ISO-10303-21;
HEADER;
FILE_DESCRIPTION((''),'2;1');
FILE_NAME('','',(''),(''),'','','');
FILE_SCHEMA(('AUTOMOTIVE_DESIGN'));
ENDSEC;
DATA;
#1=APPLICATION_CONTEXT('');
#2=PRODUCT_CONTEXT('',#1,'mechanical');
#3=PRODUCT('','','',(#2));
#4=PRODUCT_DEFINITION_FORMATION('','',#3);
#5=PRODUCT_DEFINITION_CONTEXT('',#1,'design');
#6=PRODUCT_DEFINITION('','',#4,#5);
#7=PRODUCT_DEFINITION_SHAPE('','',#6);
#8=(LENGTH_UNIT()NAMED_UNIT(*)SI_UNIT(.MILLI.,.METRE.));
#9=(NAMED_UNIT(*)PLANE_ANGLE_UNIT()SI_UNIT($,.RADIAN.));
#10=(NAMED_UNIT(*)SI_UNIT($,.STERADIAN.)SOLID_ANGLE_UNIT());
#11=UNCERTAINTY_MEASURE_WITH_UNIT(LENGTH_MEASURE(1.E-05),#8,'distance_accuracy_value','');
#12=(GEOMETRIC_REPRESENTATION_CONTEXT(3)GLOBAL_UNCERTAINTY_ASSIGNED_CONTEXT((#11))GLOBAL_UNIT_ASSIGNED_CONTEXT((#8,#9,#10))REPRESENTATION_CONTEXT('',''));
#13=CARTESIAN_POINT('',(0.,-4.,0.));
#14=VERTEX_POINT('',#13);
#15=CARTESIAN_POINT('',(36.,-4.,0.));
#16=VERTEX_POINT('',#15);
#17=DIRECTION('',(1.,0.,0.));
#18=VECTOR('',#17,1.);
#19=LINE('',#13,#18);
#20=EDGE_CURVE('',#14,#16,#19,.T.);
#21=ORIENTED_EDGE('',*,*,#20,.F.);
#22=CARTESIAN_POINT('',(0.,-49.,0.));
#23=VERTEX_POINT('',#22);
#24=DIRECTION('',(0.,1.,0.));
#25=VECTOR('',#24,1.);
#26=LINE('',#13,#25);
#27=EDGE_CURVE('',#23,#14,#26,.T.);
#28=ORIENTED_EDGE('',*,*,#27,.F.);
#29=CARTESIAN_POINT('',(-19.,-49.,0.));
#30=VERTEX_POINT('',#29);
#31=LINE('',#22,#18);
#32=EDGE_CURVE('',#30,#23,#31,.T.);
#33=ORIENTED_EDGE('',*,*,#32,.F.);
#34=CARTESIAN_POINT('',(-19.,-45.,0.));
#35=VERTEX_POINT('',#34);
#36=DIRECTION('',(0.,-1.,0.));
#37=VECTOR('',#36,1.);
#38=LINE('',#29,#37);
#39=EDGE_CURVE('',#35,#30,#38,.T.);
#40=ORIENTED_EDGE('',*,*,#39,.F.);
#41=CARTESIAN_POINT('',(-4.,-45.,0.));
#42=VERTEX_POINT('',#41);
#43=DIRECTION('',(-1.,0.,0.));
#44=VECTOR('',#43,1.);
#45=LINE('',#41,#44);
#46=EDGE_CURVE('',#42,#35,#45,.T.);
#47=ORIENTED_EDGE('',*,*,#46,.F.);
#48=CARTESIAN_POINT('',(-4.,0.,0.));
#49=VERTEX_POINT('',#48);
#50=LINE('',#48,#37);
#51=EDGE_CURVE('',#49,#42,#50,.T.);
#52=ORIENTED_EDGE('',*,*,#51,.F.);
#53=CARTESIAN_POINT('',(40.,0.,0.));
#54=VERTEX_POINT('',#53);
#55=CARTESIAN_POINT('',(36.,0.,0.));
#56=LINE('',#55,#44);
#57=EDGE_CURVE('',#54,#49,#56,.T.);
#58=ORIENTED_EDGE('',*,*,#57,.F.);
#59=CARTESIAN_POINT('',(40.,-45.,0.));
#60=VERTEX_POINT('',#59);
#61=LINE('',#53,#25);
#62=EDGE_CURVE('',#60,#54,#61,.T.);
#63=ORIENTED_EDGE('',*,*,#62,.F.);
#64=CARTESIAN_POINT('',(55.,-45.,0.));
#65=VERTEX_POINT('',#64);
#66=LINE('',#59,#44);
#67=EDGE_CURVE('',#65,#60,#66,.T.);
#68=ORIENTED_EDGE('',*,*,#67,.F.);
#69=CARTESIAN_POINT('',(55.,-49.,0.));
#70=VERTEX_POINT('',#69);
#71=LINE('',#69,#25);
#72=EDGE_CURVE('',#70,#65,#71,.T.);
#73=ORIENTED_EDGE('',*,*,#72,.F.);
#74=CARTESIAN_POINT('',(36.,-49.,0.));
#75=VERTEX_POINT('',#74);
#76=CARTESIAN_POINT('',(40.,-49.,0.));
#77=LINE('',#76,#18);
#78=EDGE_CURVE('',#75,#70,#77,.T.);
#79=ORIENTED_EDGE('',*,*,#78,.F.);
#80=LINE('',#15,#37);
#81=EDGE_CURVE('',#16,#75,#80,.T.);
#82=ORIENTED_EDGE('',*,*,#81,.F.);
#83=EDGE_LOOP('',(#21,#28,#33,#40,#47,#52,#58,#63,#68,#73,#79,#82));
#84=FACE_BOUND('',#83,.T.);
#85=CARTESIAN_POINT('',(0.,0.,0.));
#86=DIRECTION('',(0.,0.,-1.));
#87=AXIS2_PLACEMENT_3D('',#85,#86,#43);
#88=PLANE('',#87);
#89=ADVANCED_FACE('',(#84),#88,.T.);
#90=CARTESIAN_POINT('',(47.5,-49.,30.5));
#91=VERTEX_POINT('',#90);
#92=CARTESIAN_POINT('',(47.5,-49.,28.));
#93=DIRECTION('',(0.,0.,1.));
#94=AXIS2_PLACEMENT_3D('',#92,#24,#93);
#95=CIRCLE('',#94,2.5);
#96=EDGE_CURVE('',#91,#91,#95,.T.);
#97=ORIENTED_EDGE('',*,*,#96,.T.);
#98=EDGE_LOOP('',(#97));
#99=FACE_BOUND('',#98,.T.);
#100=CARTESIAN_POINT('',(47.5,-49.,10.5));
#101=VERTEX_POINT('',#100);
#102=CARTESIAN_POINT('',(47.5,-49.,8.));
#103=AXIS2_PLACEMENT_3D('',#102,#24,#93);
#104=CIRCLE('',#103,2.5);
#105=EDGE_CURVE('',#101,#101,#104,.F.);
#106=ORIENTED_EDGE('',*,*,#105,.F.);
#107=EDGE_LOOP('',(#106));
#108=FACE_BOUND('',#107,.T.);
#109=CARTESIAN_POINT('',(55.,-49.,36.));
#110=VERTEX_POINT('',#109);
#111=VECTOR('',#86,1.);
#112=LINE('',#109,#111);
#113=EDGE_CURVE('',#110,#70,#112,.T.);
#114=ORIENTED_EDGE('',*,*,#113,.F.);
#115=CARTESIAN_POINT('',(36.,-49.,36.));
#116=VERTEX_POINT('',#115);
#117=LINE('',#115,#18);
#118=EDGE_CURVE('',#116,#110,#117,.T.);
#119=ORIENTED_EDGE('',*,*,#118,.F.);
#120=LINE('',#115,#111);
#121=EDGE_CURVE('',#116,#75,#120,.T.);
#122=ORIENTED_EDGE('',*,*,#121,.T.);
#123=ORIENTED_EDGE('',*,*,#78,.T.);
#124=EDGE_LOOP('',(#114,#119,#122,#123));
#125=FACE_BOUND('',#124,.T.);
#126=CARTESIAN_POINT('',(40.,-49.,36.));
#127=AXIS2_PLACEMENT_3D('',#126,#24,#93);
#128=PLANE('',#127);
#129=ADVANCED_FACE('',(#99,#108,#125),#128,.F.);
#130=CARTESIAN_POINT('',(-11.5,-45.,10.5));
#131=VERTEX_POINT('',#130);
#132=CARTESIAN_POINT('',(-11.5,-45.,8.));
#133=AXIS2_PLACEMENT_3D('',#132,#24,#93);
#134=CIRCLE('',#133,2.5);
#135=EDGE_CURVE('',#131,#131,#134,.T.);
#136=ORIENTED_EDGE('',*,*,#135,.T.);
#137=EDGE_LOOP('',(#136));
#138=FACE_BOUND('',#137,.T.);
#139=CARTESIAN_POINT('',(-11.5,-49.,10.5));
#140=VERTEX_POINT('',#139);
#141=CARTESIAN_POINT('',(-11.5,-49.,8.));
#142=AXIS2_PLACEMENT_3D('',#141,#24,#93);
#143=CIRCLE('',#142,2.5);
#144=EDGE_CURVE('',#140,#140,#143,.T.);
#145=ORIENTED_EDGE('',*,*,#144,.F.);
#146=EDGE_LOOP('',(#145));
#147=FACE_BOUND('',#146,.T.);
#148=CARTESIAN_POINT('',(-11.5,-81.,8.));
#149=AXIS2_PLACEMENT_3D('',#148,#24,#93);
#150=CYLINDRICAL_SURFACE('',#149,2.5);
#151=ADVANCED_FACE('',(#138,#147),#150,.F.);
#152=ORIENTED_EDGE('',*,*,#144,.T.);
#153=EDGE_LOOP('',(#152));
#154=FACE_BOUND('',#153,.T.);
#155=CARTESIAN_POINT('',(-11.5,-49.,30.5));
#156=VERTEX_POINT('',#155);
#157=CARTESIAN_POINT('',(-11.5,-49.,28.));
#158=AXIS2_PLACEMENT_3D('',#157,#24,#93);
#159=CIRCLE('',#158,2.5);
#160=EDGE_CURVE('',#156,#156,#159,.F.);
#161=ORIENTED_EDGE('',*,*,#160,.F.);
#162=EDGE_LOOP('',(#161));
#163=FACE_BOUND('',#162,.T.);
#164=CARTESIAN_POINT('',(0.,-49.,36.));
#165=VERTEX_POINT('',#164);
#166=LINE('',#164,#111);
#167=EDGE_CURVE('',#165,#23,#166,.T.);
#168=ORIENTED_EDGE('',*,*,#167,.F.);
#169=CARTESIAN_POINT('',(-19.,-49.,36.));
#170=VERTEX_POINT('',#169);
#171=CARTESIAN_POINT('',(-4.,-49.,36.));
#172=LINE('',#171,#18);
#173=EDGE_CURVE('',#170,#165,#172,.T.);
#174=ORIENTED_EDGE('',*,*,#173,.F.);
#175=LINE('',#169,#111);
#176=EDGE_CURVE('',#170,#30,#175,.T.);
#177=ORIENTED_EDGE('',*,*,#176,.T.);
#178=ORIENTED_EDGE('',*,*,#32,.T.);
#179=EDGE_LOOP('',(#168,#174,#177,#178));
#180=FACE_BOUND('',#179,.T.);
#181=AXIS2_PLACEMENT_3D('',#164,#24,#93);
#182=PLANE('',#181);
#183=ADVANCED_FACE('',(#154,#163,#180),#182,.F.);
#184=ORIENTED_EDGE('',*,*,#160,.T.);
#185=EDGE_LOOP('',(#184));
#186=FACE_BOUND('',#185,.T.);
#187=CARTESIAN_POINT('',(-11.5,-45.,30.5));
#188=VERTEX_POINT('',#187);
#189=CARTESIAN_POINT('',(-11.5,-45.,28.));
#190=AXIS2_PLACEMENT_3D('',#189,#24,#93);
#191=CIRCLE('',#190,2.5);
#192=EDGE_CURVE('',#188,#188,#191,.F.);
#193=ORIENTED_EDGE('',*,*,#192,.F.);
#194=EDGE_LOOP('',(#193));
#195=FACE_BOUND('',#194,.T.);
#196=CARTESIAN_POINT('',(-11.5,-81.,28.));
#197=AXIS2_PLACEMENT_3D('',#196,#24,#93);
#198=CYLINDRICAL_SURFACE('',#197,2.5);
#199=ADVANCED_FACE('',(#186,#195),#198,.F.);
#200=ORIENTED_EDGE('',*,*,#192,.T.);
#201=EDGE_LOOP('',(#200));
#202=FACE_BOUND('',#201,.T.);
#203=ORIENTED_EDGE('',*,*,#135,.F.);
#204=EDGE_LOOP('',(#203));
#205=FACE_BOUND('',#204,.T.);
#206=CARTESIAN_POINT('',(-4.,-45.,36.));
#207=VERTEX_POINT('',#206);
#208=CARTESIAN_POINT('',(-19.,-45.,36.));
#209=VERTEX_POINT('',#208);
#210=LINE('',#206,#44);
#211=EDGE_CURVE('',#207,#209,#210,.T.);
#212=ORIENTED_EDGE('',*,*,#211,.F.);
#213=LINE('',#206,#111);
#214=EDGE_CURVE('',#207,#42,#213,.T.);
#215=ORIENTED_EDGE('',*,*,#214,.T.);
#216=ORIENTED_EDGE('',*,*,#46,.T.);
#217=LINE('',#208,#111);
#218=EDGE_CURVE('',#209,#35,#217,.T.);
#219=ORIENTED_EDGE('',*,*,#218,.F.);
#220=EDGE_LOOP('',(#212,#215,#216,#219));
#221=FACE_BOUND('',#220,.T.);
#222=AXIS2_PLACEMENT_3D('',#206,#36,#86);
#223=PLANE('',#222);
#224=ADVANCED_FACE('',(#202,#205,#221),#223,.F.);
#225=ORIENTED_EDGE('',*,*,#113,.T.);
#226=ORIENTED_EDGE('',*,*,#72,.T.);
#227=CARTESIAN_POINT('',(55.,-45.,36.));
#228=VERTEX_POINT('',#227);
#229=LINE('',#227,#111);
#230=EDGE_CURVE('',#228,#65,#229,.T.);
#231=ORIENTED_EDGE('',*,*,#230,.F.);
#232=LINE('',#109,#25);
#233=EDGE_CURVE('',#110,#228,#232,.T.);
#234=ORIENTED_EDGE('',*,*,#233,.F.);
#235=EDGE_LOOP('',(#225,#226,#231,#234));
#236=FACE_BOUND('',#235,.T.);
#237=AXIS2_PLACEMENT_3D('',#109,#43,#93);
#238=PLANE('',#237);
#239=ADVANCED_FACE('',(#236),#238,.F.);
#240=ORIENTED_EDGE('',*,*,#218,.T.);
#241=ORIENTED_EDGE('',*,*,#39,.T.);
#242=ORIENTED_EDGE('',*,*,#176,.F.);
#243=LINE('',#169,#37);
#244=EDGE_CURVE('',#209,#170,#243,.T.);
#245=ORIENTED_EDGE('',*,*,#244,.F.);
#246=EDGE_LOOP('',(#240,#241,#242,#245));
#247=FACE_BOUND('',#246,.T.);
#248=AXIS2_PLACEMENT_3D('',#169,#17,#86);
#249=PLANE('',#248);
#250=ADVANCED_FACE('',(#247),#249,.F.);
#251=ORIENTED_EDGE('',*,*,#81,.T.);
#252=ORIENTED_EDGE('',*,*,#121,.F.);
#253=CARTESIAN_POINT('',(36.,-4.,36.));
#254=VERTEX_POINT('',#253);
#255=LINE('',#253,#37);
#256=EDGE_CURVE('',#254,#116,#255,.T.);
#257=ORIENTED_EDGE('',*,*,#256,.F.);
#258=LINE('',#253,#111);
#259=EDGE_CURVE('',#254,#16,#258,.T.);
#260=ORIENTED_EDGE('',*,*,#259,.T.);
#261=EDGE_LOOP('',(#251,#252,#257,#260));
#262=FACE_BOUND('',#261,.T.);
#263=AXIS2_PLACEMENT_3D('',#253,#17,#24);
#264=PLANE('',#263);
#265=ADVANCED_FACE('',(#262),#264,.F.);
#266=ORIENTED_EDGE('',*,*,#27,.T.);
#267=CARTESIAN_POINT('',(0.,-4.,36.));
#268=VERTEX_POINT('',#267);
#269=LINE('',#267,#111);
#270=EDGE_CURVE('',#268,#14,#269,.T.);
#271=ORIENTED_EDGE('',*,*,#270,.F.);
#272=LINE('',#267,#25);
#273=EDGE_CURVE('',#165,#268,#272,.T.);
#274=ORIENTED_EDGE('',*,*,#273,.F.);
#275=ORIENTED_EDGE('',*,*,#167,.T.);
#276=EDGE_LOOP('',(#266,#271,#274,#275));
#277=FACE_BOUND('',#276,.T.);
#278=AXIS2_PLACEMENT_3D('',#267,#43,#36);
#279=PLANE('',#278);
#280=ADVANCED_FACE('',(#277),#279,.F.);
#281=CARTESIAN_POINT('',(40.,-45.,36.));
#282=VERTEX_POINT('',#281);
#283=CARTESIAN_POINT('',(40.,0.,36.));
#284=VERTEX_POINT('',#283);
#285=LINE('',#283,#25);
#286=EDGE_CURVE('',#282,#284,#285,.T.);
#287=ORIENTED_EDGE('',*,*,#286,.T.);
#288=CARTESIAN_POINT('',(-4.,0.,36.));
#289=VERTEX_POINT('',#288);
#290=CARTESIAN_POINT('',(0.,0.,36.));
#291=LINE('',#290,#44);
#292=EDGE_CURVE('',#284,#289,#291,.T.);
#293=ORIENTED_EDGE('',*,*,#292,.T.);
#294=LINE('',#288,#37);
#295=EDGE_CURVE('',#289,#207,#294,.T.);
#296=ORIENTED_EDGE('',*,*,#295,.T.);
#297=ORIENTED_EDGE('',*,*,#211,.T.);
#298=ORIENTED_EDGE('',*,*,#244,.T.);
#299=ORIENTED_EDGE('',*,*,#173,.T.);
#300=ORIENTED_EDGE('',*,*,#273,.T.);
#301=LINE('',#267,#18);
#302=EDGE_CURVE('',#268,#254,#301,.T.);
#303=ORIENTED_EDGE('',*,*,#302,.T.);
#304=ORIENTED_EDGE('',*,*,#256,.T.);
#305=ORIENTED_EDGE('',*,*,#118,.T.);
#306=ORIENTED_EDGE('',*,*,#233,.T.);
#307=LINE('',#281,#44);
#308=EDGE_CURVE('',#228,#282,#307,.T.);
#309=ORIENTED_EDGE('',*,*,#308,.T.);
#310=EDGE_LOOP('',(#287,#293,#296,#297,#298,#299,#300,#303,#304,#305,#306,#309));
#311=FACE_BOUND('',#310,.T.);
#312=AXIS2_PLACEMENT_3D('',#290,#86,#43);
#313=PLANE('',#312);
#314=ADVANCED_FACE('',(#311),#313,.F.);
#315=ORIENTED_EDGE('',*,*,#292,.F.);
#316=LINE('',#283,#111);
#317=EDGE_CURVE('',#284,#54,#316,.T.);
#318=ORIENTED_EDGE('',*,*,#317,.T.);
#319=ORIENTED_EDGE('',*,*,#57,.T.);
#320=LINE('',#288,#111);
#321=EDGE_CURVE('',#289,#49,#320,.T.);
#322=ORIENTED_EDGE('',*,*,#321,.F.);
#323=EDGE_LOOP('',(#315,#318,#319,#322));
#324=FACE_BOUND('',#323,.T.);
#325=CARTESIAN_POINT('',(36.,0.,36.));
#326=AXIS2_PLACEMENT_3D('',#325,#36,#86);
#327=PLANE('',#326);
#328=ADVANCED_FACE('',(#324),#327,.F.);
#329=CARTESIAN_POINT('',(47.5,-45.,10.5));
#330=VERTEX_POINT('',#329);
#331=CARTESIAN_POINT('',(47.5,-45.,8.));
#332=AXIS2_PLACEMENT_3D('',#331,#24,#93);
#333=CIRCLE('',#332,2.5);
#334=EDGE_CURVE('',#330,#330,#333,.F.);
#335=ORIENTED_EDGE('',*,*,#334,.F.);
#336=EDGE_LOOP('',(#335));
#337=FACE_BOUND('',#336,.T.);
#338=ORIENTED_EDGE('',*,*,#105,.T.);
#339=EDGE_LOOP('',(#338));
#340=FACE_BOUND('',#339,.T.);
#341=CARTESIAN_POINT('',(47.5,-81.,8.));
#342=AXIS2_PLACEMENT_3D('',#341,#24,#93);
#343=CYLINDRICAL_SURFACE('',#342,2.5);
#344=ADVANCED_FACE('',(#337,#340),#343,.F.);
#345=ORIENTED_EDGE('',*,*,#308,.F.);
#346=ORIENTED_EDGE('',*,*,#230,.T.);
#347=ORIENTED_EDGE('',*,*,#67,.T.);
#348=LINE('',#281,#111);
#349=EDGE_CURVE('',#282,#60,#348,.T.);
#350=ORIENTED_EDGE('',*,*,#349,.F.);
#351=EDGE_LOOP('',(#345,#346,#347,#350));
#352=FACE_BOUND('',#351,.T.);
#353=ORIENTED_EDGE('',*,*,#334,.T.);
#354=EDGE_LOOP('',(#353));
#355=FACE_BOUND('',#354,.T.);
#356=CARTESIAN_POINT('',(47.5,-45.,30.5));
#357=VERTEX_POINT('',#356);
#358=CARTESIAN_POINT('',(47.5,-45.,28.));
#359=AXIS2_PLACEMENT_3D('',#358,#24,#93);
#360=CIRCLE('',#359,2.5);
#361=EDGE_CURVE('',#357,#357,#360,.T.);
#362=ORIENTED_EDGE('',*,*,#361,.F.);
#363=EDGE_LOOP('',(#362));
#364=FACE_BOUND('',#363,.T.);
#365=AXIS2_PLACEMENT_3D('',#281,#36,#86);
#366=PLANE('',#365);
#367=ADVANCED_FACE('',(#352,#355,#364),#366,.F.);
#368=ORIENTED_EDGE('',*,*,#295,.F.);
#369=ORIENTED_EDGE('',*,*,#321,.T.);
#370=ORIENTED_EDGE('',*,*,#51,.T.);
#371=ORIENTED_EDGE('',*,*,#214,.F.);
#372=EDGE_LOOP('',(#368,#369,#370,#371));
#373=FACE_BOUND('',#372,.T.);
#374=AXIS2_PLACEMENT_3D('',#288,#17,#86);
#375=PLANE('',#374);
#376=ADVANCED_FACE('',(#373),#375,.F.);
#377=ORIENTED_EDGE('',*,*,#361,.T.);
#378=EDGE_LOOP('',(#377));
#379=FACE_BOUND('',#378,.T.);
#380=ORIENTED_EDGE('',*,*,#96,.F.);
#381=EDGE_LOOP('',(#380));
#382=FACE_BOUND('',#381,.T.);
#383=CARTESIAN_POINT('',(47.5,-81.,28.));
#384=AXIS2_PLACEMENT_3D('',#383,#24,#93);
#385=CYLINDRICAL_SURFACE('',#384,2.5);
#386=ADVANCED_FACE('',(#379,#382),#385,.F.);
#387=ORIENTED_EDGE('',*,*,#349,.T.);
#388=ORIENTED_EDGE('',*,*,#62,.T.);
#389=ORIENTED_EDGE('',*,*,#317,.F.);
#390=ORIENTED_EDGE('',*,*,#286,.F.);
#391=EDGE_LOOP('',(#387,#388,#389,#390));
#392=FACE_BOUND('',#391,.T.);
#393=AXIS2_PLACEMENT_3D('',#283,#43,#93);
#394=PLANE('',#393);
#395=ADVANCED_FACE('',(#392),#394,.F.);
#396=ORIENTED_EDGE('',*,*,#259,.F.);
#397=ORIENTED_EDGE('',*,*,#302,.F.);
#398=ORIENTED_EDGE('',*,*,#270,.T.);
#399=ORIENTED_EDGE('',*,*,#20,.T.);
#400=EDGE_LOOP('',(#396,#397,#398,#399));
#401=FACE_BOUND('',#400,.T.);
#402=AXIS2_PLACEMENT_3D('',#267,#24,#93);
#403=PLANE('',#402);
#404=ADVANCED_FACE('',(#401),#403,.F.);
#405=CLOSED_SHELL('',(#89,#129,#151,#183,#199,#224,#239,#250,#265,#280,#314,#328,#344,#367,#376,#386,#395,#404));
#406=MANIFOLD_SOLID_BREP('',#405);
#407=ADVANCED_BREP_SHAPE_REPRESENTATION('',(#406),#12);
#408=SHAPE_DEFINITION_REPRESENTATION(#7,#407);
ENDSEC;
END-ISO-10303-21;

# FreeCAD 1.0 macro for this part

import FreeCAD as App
import Part
import Sketcher

V = App.Vector


def add_polygon(sketch, points):
    """Adds a closed chain of lines whose ends are joined by coincident constraints."""
    first, n = sketch.GeometryCount, len(points)
    for a, b in zip(points, points[1:] + points[:1]):
        sketch.addGeometry(Part.LineSegment(App.Vector(*a, 0), App.Vector(*b, 0)), False)
    for i in range(n):
        sketch.addConstraint(Sketcher.Constraint("Coincident", first + i, 2, first + (i + 1) % n, 1))

doc = App.newDocument("Part")
body = doc.addObject("PartDesign::Body", "Body")

# Sketch on XY plane
sketch1 = body.newObject("Sketcher::SketchObject", "Sketch")
sketch1.AttachmentSupport = (doc.getObject("XY_Plane"), [""])
sketch1.MapMode = "FlatFace"
add_polygon(sketch1, [(40, 0), (-4, 0), (-4, -45), (-19, -45), (-19, -49), (0, -49), (0, -4), (36, -4), (36, -49), (55, -49), (55, -45), (40, -45)])  # lines 0-11
sketch1.addConstraint([
    Sketcher.Constraint("Horizontal", 0),
    Sketcher.Constraint("Vertical", 1),
    Sketcher.Constraint("Horizontal", 2),
    Sketcher.Constraint("Vertical", 3),
    Sketcher.Constraint("Horizontal", 4),
    Sketcher.Constraint("Vertical", 5),
    Sketcher.Constraint("Horizontal", 6),
    Sketcher.Constraint("Vertical", 7),
    Sketcher.Constraint("Horizontal", 8),
    Sketcher.Constraint("Vertical", 9),
    Sketcher.Constraint("Horizontal", 10),
    Sketcher.Constraint("Vertical", 11),
    Sketcher.Constraint("PointOnObject", 0, 2, -1),
    Sketcher.Constraint("PointOnObject", 4, 2, -2),
    Sketcher.Constraint("Horizontal", 4, 2, 7, 2),
    Sketcher.Constraint("Horizontal", 2, 2, 9, 2),
    Sketcher.Constraint("Equal", 4, 8),
    Sketcher.Constraint("Equal", 2, 10),
    Sketcher.Constraint("Equal", 1, 5),
    Sketcher.Constraint("DistanceX", 0, 2, 0, 1, 44.0),
    Sketcher.Constraint("DistanceX", 2, 2, 2, 1, 15.0),
    Sketcher.Constraint("DistanceX", 4, 1, 4, 2, 19.0),
    Sketcher.Constraint("DistanceY", 1, 2, 1, 1, 45.0),
    Sketcher.Constraint("DistanceY", 3, 2, 3, 1, 4.0),
])
pad1 = body.newObject("PartDesign::Pad", "Pad")
pad1.Profile = sketch1
pad1.Length = 36

# Sketch on XZ plane
sketch2 = body.newObject("Sketcher::SketchObject", "Sketch001")
sketch2.AttachmentSupport = (doc.getObject("XZ_Plane"), [""])
sketch2.MapMode = "FlatFace"
sketch2.AttachmentOffset = App.Placement(V(0, 0, 45), App.Rotation())
sketch2.addGeometry([
    Part.Circle(V(-11.5, 8, 0), V(0, 0, 1), 2.5),
    Part.Circle(V(-11.5, 28, 0), V(0, 0, 1), 2.5),
    Part.Circle(V(47.5, 28, 0), V(0, 0, 1), 2.5),
    Part.Circle(V(47.5, 8, 0), V(0, 0, 1), 2.5),
], False)
sketch2.addConstraint([
    Sketcher.Constraint("Equal", 0, 1),
    Sketcher.Constraint("Equal", 1, 2),
    Sketcher.Constraint("Equal", 2, 3),
    Sketcher.Constraint("Horizontal", 1, 3, 2, 3),
    Sketcher.Constraint("Horizontal", 0, 3, 3, 3),
    Sketcher.Constraint("Vertical", 0, 3, 1, 3),
    Sketcher.Constraint("Vertical", 2, 3, 3, 3),
    Sketcher.Constraint("Diameter", 0, 5.0),
    Sketcher.Constraint("DistanceY", -1, 1, 0, 3, 8.0),
    Sketcher.Constraint("DistanceY", -1, 1, 1, 3, 28.0),
    Sketcher.Constraint("DistanceX", 1, 3, 2, 3, 59.0),
    Sketcher.Constraint("DistanceX", 0, 3, -1, 1, 11.5),
])
pocket1 = body.newObject("PartDesign::Pocket", "Pocket")
pocket1.Profile = sketch2
pocket1.Length = 36
pocket1.Reversed = True

doc.recompute()
